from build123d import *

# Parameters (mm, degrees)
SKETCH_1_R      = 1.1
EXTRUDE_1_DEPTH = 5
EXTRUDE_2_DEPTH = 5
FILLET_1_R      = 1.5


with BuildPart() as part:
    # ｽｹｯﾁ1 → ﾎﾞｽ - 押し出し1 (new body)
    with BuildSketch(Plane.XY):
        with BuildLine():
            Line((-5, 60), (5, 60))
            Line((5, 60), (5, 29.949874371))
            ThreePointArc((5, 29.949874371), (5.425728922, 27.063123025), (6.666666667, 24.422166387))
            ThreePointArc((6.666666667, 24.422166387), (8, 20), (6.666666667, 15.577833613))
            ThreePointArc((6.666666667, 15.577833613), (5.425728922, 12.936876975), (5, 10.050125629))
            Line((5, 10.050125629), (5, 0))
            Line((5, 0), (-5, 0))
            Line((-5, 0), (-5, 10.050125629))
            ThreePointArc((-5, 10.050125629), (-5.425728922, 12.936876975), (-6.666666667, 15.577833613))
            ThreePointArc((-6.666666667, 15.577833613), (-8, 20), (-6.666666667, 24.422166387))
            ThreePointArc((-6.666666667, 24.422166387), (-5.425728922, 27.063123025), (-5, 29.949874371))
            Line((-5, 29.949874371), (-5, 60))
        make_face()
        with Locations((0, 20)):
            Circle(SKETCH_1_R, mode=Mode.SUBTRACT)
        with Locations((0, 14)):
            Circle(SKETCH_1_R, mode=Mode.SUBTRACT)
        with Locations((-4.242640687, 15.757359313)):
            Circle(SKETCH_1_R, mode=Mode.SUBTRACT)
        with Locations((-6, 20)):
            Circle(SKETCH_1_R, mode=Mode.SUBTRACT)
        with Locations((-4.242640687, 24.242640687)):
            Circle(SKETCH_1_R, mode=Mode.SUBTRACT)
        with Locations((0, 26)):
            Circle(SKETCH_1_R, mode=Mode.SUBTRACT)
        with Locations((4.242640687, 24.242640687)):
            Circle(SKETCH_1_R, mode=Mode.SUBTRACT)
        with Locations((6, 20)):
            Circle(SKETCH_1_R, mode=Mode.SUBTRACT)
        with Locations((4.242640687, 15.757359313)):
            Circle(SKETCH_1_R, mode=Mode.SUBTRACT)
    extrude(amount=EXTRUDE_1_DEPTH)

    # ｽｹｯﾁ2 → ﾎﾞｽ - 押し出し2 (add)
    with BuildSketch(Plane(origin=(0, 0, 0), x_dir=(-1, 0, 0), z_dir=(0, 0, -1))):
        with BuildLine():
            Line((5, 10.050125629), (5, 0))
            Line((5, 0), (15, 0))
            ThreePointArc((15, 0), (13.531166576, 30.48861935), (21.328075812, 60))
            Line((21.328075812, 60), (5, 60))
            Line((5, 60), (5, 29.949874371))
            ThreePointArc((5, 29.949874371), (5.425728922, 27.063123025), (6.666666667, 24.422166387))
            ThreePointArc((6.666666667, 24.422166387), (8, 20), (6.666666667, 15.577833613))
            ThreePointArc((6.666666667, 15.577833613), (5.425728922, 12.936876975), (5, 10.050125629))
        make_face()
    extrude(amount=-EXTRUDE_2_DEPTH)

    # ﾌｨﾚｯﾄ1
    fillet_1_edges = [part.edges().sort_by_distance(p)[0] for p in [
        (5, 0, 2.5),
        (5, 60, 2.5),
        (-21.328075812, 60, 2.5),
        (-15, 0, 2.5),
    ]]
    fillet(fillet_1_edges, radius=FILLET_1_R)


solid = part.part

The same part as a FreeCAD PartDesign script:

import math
import FreeCAD as App
import Part
import Sketcher


def edges_at(feature, points):
    """Names of the edges that pass closest to the given points."""
    edges = feature.Shape.Edges
    near = lambda p: min(range(len(edges)), key=lambda i: edges[i].distToShape(Part.Vertex(*p))[0])
    return sorted({f"Edge{near(p) + 1}" for p in points})

doc = App.newDocument("Part")
body = doc.addObject("PartDesign::Body", "Body")

sketch1 = doc.addObject("Sketcher::SketchObject", "Sketch")
body.addObject(sketch1)
sketch1.AttachmentSupport = (doc.XY_Plane, [""])
sketch1.MapMode = "FlatFace"
sketch1.addGeometry([
    Part.LineSegment(App.Vector(5, 60, 0), App.Vector(-5, 60, 0)),
    Part.LineSegment(App.Vector(-5, 60, 0), App.Vector(-5, 29.9, 0)),
    Part.ArcOfCircle(Part.Circle(App.Vector(-15, 29.9, 0), App.Vector(0, 0, 1), 10), math.radians(-34), math.radians(0)),
    Part.ArcOfCircle(Part.Circle(App.Vector(0, 20, 0), App.Vector(0, 0, 1), 8), math.radians(146), math.radians(214)),
    Part.ArcOfCircle(Part.Circle(App.Vector(-15, 10.1, 0), App.Vector(0, 0, 1), 10), math.radians(0), math.radians(34)),
    Part.LineSegment(App.Vector(-5, 10.1, 0), App.Vector(-5, 0, 0)),
    Part.LineSegment(App.Vector(-5, 0, 0), App.Vector(5, 0, 0)),
    Part.LineSegment(App.Vector(5, 0, 0), App.Vector(5, 10.1, 0)),
    Part.ArcOfCircle(Part.Circle(App.Vector(15, 10.1, 0), App.Vector(0, 0, 1), 10), math.radians(146), math.radians(180)),
    Part.ArcOfCircle(Part.Circle(App.Vector(0, 20, 0), App.Vector(0, 0, 1), 8), math.radians(-34), math.radians(34)),
    Part.ArcOfCircle(Part.Circle(App.Vector(15, 29.9, 0), App.Vector(0, 0, 1), 10), math.radians(180), math.radians(214)),
    Part.LineSegment(App.Vector(5, 29.9, 0), App.Vector(5, 60, 0)),
    Part.Circle(App.Vector(4.2, 15.8, 0), App.Vector(0, 0, 1), 1.1),
    Part.Circle(App.Vector(0, 14, 0), App.Vector(0, 0, 1), 1.1),
    Part.Circle(App.Vector(-4.2, 15.8, 0), App.Vector(0, 0, 1), 1.1),
    Part.Circle(App.Vector(6, 20, 0), App.Vector(0, 0, 1), 1.1),
    Part.Circle(App.Vector(4.2, 24.2, 0), App.Vector(0, 0, 1), 1.1),
    Part.Circle(App.Vector(0, 20, 0), App.Vector(0, 0, 1), 1.1),
    Part.Circle(App.Vector(-6, 20, 0), App.Vector(0, 0, 1), 1.1),
    Part.Circle(App.Vector(0, 26, 0), App.Vector(0, 0, 1), 1.1),
    Part.Circle(App.Vector(-4.2, 24.2, 0), App.Vector(0, 0, 1), 1.1),
], False)
sketch1.addConstraint([
    Sketcher.Constraint("Coincident", 0, 2, 1, 1),
    Sketcher.Constraint("Tangent", 1, 2, 2, 2),
    Sketcher.Constraint("Tangent", 2, 1, 3, 1),
    Sketcher.Constraint("Tangent", 3, 2, 4, 2),
    Sketcher.Constraint("Tangent", 4, 1, 5, 1),
    Sketcher.Constraint("Coincident", 5, 2, 6, 1),
    Sketcher.Constraint("Coincident", 6, 2, 7, 1),
    Sketcher.Constraint("Tangent", 7, 2, 8, 2),
    Sketcher.Constraint("Tangent", 8, 1, 9, 1),
    Sketcher.Constraint("Tangent", 9, 2, 10, 2),
    Sketcher.Constraint("Tangent", 10, 1, 11, 1),
    Sketcher.Constraint("Coincident", 11, 2, 0, 1),
    Sketcher.Constraint("Horizontal", 0),
    Sketcher.Constraint("Vertical", 1),
    Sketcher.Constraint("Vertical", 5),
    Sketcher.Constraint("Horizontal", 6),
    Sketcher.Constraint("Vertical", 7),
    Sketcher.Constraint("Vertical", 11),
    Sketcher.Constraint("Coincident", 9, 3, 3, 3),
    Sketcher.Constraint("Coincident", 17, 3, 3, 3),
    Sketcher.Constraint("Equal", 2, 4),
    Sketcher.Constraint("Equal", 4, 8),
    Sketcher.Constraint("Equal", 3, 9),
    Sketcher.Constraint("Equal", 8, 10),
    Sketcher.Constraint("Equal", 12, 13),
    Sketcher.Constraint("Equal", 13, 14),
    Sketcher.Constraint("Equal", 14, 15),
    Sketcher.Constraint("Equal", 15, 16),
    Sketcher.Constraint("Equal", 16, 17),
    Sketcher.Constraint("Equal", 17, 18),
    Sketcher.Constraint("Equal", 18, 19),
    Sketcher.Constraint("Equal", 19, 20),
    Sketcher.Constraint("Symmetric", 5, 2, 6, 2, -1, 1),
    Sketcher.Constraint("Symmetric", 2, 3, 10, 3, -2),
    Sketcher.Constraint("Symmetric", 12, 3, 14, 3, -2),
    Sketcher.Constraint("Symmetric", 15, 3, 18, 3, -2),
    Sketcher.Constraint("Symmetric", 16, 3, 20, 3, -2),
    Sketcher.Constraint("PointOnObject", 13, 3, -2),
    Sketcher.Constraint("PointOnObject", 19, 3, -2),
    Sketcher.Constraint("Horizontal", 9, 3, 15, 3),
    Sketcher.Constraint("Vertical", 2, 3, 4, 3),
    Sketcher.Constraint("Vertical", 12, 3, 16, 3),
    Sketcher.Constraint("Radius", 2, 10.0),
    Sketcher.Constraint("Radius", 3, 8.0),
    Sketcher.Constraint("Diameter", 12, 2.2),
    Sketcher.Constraint("DistanceX", 0, 2, 0, 1, 10.0),
    Sketcher.Constraint("DistanceY", -1, 1, 3, 3, 20.0),
    Sketcher.Constraint("DistanceY", -1, 1, 13, 3, 14.0),
    Sketcher.Constraint("DistanceX", -1, 1, 15, 3, 6.0),
    Sketcher.Constraint("DistanceY", -1, 1, 19, 3, 26.0),
    Sketcher.Constraint("DistanceY", -1, 1, 0, 2, 60.0),
    Sketcher.Constraint("DistanceX", -1, 1, 12, 3, 4.242641),
    Sketcher.Constraint("DistanceY", -1, 1, 12, 3, 15.757359),
    Sketcher.Constraint("DistanceY", -1, 1, 16, 3, 24.242641),
])
pad1 = doc.addObject("PartDesign::Pad", "Pad")
body.addObject(pad1)
pad1.Profile = sketch1
pad1.Length = 5

sketch2 = doc.addObject("Sketcher::SketchObject", "Sketch001")
body.addObject(sketch2)
sketch2.AttachmentSupport = (doc.XY_Plane, [""])
sketch2.MapMode = "FlatFace"
sketch2.addGeometry([
    Part.LineSegment(App.Vector(-5, 10, 0), App.Vector(-5, 0, 0)),
    Part.LineSegment(App.Vector(-5, 0, 0), App.Vector(-15, 0, 0)),
    Part.ArcOfCircle(Part.Circle(App.Vector(-113, 20, 0), App.Vector(0, 0, 1), 100), math.radians(-12), math.radians(24)),
    Part.LineSegment(App.Vector(-21, 60, 0), App.Vector(-5, 60, 0)),
    Part.LineSegment(App.Vector(-5, 60, 0), App.Vector(-5, 30, 0)),
    Part.ArcOfCircle(Part.Circle(App.Vector(-15, 30, 0), App.Vector(0, 0, 1), 10), math.radians(-34), math.radians(0)),
    Part.ArcOfCircle(Part.Circle(App.Vector(0, 20, 0), App.Vector(0, 0, 1), 8), math.radians(146), math.radians(214)),
    Part.ArcOfCircle(Part.Circle(App.Vector(-15, 10, 0), App.Vector(0, 0, 1), 10), math.radians(0), math.radians(34)),
], False)
sketch2.addConstraint([
    Sketcher.Constraint("Coincident", 0, 2, 1, 1),
    Sketcher.Constraint("Coincident", 1, 2, 2, 1),
    Sketcher.Constraint("Coincident", 2, 2, 3, 1),
    Sketcher.Constraint("Coincident", 3, 2, 4, 1),
    Sketcher.Constraint("Tangent", 4, 2, 5, 2),
    Sketcher.Constraint("Tangent", 5, 1, 6, 1),
    Sketcher.Constraint("Tangent", 6, 2, 7, 2),
    Sketcher.Constraint("Tangent", 7, 1, 0, 1),
    Sketcher.Constraint("Vertical", 0),
    Sketcher.Constraint("Horizontal", 1),
    Sketcher.Constraint("Horizontal", 3),
    Sketcher.Constraint("Vertical", 4),
    Sketcher.Constraint("Equal", 5, 7),
    Sketcher.Constraint("PointOnObject", 6, 3, -2),
    Sketcher.Constraint("PointOnObject", 0, 2, -1),
    Sketcher.Constraint("Horizontal", 2, 3, 6, 3),
    Sketcher.Constraint("Vertical", 5, 3, 7, 3),
    Sketcher.Constraint("Vertical", 7, 3, 1, 2),
    Sketcher.Constraint("Radius", 2, 100.0),
    Sketcher.Constraint("Radius", 5, 10.0),
    Sketcher.Constraint("Radius", 6, 8.0),
    Sketcher.Constraint("DistanceY", -1, 1, 2, 3, 20.0),
    Sketcher.Constraint("DistanceX", 5, 3, -1, 1, 15.0),
    Sketcher.Constraint("DistanceY", -1, 1, 2, 2, 60.0),
])
pad2 = doc.addObject("PartDesign::Pad", "Pad001")
body.addObject(pad2)
pad2.Profile = sketch2
pad2.Length = 5
doc.recompute()

fillet = doc.addObject("PartDesign::Fillet", "Fillet")
body.addObject(fillet)
fillet.Base = (pad2, edges_at(pad2, [
    (5, 0, 2.5),
    (5, 60, 2.5),
    (-21.328, 60, 2.5),
    (-15, 0, 2.5),
]))
fillet.Radius = 1.5

doc.recompute()
